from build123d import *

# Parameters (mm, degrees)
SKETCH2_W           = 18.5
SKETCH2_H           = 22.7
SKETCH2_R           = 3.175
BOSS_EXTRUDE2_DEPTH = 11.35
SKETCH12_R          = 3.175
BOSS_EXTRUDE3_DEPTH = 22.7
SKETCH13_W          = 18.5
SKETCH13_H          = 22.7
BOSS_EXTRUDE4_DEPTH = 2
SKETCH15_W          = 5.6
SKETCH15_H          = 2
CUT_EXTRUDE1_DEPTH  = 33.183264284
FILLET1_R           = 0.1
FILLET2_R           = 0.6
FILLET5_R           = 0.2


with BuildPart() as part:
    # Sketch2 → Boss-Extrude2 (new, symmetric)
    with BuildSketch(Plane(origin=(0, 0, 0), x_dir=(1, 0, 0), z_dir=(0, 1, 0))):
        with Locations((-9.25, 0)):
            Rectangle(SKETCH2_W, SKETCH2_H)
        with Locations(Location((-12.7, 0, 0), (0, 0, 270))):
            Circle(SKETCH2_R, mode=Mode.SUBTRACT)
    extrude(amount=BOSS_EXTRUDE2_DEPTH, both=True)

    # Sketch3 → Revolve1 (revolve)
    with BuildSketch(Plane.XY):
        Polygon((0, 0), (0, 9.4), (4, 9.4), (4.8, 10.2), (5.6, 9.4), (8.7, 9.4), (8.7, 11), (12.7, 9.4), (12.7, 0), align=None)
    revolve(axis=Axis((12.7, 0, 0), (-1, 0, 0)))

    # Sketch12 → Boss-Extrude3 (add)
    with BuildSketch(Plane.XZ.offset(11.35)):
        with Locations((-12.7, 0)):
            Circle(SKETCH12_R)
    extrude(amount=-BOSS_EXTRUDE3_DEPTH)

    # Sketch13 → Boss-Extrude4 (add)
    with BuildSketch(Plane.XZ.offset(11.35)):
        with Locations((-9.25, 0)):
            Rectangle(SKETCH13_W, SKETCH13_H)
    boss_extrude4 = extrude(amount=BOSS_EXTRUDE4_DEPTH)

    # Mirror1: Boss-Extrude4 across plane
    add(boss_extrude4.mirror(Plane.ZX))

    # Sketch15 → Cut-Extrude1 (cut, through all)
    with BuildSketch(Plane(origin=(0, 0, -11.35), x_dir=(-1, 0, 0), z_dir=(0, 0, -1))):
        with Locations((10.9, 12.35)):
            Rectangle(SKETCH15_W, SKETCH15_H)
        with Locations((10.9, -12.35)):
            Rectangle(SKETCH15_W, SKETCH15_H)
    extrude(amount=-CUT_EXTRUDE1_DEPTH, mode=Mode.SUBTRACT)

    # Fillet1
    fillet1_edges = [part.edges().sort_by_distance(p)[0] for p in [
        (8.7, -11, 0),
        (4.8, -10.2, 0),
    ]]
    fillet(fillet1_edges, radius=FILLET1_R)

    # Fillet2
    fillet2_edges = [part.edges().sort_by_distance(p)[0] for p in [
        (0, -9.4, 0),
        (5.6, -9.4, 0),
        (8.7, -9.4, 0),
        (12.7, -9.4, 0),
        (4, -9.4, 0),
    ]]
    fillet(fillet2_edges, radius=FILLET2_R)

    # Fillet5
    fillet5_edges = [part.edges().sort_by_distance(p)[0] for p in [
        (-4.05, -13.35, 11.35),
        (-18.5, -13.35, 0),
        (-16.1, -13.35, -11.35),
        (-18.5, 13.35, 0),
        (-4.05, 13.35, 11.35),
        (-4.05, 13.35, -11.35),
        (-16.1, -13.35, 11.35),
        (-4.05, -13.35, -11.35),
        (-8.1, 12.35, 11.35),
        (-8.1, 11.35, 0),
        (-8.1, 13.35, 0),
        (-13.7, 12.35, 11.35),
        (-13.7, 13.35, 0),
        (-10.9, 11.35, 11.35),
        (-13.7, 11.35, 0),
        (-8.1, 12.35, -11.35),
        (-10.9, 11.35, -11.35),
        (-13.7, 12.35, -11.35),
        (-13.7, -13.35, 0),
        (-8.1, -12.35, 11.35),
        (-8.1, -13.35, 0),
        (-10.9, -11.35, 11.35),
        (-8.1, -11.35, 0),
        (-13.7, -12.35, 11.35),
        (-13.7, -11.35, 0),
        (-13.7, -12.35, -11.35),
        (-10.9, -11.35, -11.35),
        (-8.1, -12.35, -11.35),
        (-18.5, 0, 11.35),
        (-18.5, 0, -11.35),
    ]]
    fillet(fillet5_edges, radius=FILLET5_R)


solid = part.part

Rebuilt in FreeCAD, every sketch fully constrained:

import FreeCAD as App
import Part
import Sketcher
from FreeCAD import Vector


def edges_at(feature, points):
    """Names of the edges that pass closest to the given points."""
    edges = feature.Shape.Edges
    near = lambda p: min(range(len(edges)), key=lambda i: edges[i].distToShape(Part.Vertex(*p))[0])
    return sorted({f"Edge{near(p) + 1}" for p in points})


def add_polygon(sketch, points):
    """Adds a closed chain of lines whose ends are joined by coincident constraints."""
    first, n = sketch.GeometryCount, len(points)
    for a, b in zip(points, points[1:] + points[:1]):
        sketch.addGeometry(Part.LineSegment(App.Vector(*a, 0), App.Vector(*b, 0)), False)
    for i in range(n):
        sketch.addConstraint(Sketcher.Constraint("Coincident", first + i, 2, first + (i + 1) % n, 1))

doc = App.newDocument("Part")
body = doc.addObject("PartDesign::Body", "Body")

# Sketch on XZ plane
sketch1 = body.newObject("Sketcher::SketchObject", "Sketch")
sketch1.AttachmentSupport = (doc.getObject("XZ_Plane"), [""])
sketch1.MapMode = "FlatFace"
add_polygon(sketch1, [(-18.5, -11.3), (-18.5, 11.3), (0, 11.3), (0, -11.3)])  # lines 0-3
sketch1.addGeometry(Part.Circle(Vector(-12.7, 0, 0), Vector(0, 0, 1), 3.2), False)  # 4
sketch1.addConstraint(Sketcher.Constraint("Vertical", 0))
sketch1.addConstraint(Sketcher.Constraint("Horizontal", 1))
sketch1.addConstraint(Sketcher.Constraint("Vertical", 2))
sketch1.addConstraint(Sketcher.Constraint("Horizontal", 3))
sketch1.addConstraint(Sketcher.Constraint("Symmetric", 1, 2, 2, 2, -1, 1))
sketch1.addConstraint(Sketcher.Constraint("PointOnObject", 4, 3, -1))
sketch1.addConstraint(Sketcher.Constraint("Diameter", 4, 6.35))
sketch1.addConstraint(Sketcher.Constraint("DistanceX", 1, 1, 1, 2, 18.5))
sketch1.addConstraint(Sketcher.Constraint("DistanceY", 0, 1, 0, 2, 22.7))
sketch1.addConstraint(Sketcher.Constraint("DistanceX", 4, 3, -1, 1, 12.7))
pad1 = body.newObject("PartDesign::Pad", "Pad")
pad1.Profile = sketch1
pad1.Length = 22.7
pad1.Midplane = True

# Sketch on XY plane
sketch2 = body.newObject("Sketcher::SketchObject", "Sketch001")
sketch2.AttachmentSupport = (doc.getObject("XY_Plane"), [""])
sketch2.MapMode = "FlatFace"
add_polygon(sketch2, [(0, 9.4), (0, 0), (12.7, 0), (12.7, 9.4), (8.7, 11), (8.7, 9.4), (5.6, 9.4), (4.8, 10.2), (4, 9.4)])  # lines 0-8
sketch2.addConstraint(Sketcher.Constraint("Vertical", 0))
sketch2.addConstraint(Sketcher.Constraint("Horizontal", 1))
sketch2.addConstraint(Sketcher.Constraint("Vertical", 2))
sketch2.addConstraint(Sketcher.Constraint("Vertical", 4))
sketch2.addConstraint(Sketcher.Constraint("Horizontal", 5))
sketch2.addConstraint(Sketcher.Constraint("Horizontal", 8))
sketch2.addConstraint(Sketcher.Constraint("Coincident", 0, 2, -1, 1))
sketch2.addConstraint(Sketcher.Constraint("Perpendicular", 6, 7))
sketch2.addConstraint(Sketcher.Constraint("Horizontal", 2, 2, 4, 2))
sketch2.addConstraint(Sketcher.Constraint("Horizontal", 5, 2, 7, 2))
sketch2.addConstraint(Sketcher.Constraint("Equal", 6, 7))
sketch2.addConstraint(Sketcher.Constraint("DistanceX", 8, 2, 8, 1, 4.0))
sketch2.addConstraint(Sketcher.Constraint("DistanceX", 1, 1, 1, 2, 12.7))
sketch2.addConstraint(Sketcher.Constraint("DistanceX", 5, 2, 5, 1, 3.1))
sketch2.addConstraint(Sketcher.Constraint("DistanceY", 0, 2, 0, 1, 9.4))
sketch2.addConstraint(Sketcher.Constraint("DistanceY", 4, 2, 4, 1, 1.6))
sketch2.addConstraint(Sketcher.Constraint("DistanceX", 3, 2, 2, 2, 4.0))
revolution = body.newObject("PartDesign::Revolution", "Revolution")
revolution.Profile = sketch2
revolution.ReferenceAxis = (sketch2, ["H_Axis"])
revolution.Angle = 360

# Sketch on XZ plane
sketch3 = body.newObject("Sketcher::SketchObject", "Sketch002")
sketch3.AttachmentSupport = (doc.getObject("XZ_Plane"), [""])
sketch3.MapMode = "FlatFace"
sketch3.AttachmentOffset = App.Placement(Vector(0, 0, 11.35), App.Rotation())
sketch3.addGeometry(Part.Circle(Vector(-12.7, 0, 0), Vector(0, 0, 1), 3.2), False)
sketch3.addConstraint(Sketcher.Constraint("PointOnObject", 0, 3, -1))
sketch3.addConstraint(Sketcher.Constraint("Diameter", 0, 6.35))
sketch3.addConstraint(Sketcher.Constraint("DistanceX", 0, 3, -1, 1, 12.7))
pad2 = body.newObject("PartDesign::Pad", "Pad001")
pad2.Profile = sketch3
pad2.Length = 22.7
pad2.Reversed = True

# Sketch on XZ plane
sketch4 = body.newObject("Sketcher::SketchObject", "Sketch003")
sketch4.AttachmentSupport = (doc.getObject("XZ_Plane"), [""])
sketch4.MapMode = "FlatFace"
sketch4.AttachmentOffset = App.Placement(Vector(0, 0, 11.35), App.Rotation())
add_polygon(sketch4, [(-18, 11), (-18, -11), (0, -11), (0, 11)])  # lines 0-3
sketch4.addConstraint(Sketcher.Constraint("Vertical", 0))
sketch4.addConstraint(Sketcher.Constraint("Horizontal", 1))
sketch4.addConstraint(Sketcher.Constraint("Vertical", 2))
sketch4.addConstraint(Sketcher.Constraint("Horizontal", 3))
sketch4.addConstraint(Sketcher.Constraint("Symmetric", 1, 2, 2, 2, -1, 1))
sketch4.addConstraint(Sketcher.Constraint("DistanceX", 1, 1, 1, 2, 18.5))
sketch4.addConstraint(Sketcher.Constraint("DistanceY", 0, 2, 0, 1, 22.7))
pad3 = body.newObject("PartDesign::Pad", "Pad002")
pad3.Profile = sketch4
pad3.Length = 2
doc.recompute()

mirrored = body.newObject("PartDesign::Mirrored", "Mirrored")
mirrored.Originals = [pad3]
mirrored.MirrorPlane = (doc.getObject("XZ_Plane"), [""])
body.Tip = mirrored

# Sketch on XY plane
sketch5 = body.newObject("Sketcher::SketchObject", "Sketch004")
sketch5.AttachmentSupport = (doc.getObject("XY_Plane"), [""])
sketch5.MapMode = "FlatFace"
sketch5.AttachmentOffset = App.Placement(Vector(0, 0, -11.35), App.Rotation())
add_polygon(sketch5, [(-8.1, 13.3), (-8.1, 11.3), (-13.7, 11.3), (-13.7, 13.3)])  # lines 0-3
add_polygon(sketch5, [(-8.1, -11.3), (-8.1, -13.3), (-13.7, -13.3), (-13.7, -11.3)])  # lines 4-7
sketch5.addConstraint(Sketcher.Constraint("Vertical", 0))
sketch5.addConstraint(Sketcher.Constraint("Horizontal", 1))
sketch5.addConstraint(Sketcher.Constraint("Vertical", 2))
sketch5.addConstraint(Sketcher.Constraint("Horizontal", 3))
sketch5.addConstraint(Sketcher.Constraint("Vertical", 4))
sketch5.addConstraint(Sketcher.Constraint("Horizontal", 5))
sketch5.addConstraint(Sketcher.Constraint("Vertical", 6))
sketch5.addConstraint(Sketcher.Constraint("Horizontal", 7))
sketch5.addConstraint(Sketcher.Constraint("Symmetric", 3, 2, 4, 2, -1))
sketch5.addConstraint(Sketcher.Constraint("Symmetric", 1, 2, 6, 2, -1))
sketch5.addConstraint(Sketcher.Constraint("DistanceY", 0, 2, 0, 1, 2.0))
sketch5.addConstraint(Sketcher.Constraint("DistanceX", 1, 2, 1, 1, 5.6))
sketch5.addConstraint(Sketcher.Constraint("DistanceX", 0, 2, -1, 1, 8.1))
sketch5.addConstraint(Sketcher.Constraint("DistanceY", 4, 2, 0, 2, 24.7))
pocket1 = body.newObject("PartDesign::Pocket", "Pocket")
pocket1.Profile = sketch5
pocket1.Type = "ThroughAll"
pocket1.Reversed = True
doc.recompute()

fillet = body.newObject("PartDesign::Fillet", "Fillet")
fillet.Base = (pocket1, edges_at(pocket1, [(8.7, -11, 0), (4.8, -10.2, 0)]))
fillet.Radius = 0.1
doc.recompute()

fillet2 = body.newObject("PartDesign::Fillet", "Fillet001")
fillet2.Base = (fillet, edges_at(fillet, [
    (0, -9.4, 0),
    (5.6, -9.4, 0),
    (8.7, -9.4, 0),
    (12.7, -9.4, 0),
    (4, -9.4, 0),
]))
fillet2.Radius = 0.6
doc.recompute()

fillet3 = body.newObject("PartDesign::Fillet", "Fillet002")
fillet3.Base = (fillet2, edges_at(fillet2, [
    (-4.05, -13.35, 11.35),
    (-18.5, -13.35, 0),
    (-16.1, -13.35, -11.35),
    (-18.5, 13.35, 0),
    (-4.05, 13.35, 11.35),
    (-4.05, 13.35, -11.35),
    (-16.1, -13.35, 11.35),
    (-4.05, -13.35, -11.35),
    (-8.1, 12.35, 11.35),
    (-8.1, 11.35, 0),
    (-8.1, 13.35, 0),
    (-13.7, 12.35, 11.35),
    (-13.7, 13.35, 0),
    (-10.9, 11.35, 11.35),
    (-13.7, 11.35, 0),
    (-8.1, 12.35, -11.35),
    (-10.9, 11.35, -11.35),
    (-13.7, 12.35, -11.35),
    (-13.7, -13.35, 0),
    (-8.1, -12.35, 11.35),
    (-8.1, -13.35, 0),
    (-10.9, -11.35, 11.35),
    (-8.1, -11.35, 0),
    (-13.7, -12.35, 11.35),
    (-13.7, -11.35, 0),
    (-13.7, -12.35, -11.35),
    (-10.9, -11.35, -11.35),
    (-8.1, -12.35, -11.35),
    (-18.5, 0, 11.35),
    (-18.5, 0, -11.35),
]))
fillet3.Radius = 0.2

doc.recompute()
